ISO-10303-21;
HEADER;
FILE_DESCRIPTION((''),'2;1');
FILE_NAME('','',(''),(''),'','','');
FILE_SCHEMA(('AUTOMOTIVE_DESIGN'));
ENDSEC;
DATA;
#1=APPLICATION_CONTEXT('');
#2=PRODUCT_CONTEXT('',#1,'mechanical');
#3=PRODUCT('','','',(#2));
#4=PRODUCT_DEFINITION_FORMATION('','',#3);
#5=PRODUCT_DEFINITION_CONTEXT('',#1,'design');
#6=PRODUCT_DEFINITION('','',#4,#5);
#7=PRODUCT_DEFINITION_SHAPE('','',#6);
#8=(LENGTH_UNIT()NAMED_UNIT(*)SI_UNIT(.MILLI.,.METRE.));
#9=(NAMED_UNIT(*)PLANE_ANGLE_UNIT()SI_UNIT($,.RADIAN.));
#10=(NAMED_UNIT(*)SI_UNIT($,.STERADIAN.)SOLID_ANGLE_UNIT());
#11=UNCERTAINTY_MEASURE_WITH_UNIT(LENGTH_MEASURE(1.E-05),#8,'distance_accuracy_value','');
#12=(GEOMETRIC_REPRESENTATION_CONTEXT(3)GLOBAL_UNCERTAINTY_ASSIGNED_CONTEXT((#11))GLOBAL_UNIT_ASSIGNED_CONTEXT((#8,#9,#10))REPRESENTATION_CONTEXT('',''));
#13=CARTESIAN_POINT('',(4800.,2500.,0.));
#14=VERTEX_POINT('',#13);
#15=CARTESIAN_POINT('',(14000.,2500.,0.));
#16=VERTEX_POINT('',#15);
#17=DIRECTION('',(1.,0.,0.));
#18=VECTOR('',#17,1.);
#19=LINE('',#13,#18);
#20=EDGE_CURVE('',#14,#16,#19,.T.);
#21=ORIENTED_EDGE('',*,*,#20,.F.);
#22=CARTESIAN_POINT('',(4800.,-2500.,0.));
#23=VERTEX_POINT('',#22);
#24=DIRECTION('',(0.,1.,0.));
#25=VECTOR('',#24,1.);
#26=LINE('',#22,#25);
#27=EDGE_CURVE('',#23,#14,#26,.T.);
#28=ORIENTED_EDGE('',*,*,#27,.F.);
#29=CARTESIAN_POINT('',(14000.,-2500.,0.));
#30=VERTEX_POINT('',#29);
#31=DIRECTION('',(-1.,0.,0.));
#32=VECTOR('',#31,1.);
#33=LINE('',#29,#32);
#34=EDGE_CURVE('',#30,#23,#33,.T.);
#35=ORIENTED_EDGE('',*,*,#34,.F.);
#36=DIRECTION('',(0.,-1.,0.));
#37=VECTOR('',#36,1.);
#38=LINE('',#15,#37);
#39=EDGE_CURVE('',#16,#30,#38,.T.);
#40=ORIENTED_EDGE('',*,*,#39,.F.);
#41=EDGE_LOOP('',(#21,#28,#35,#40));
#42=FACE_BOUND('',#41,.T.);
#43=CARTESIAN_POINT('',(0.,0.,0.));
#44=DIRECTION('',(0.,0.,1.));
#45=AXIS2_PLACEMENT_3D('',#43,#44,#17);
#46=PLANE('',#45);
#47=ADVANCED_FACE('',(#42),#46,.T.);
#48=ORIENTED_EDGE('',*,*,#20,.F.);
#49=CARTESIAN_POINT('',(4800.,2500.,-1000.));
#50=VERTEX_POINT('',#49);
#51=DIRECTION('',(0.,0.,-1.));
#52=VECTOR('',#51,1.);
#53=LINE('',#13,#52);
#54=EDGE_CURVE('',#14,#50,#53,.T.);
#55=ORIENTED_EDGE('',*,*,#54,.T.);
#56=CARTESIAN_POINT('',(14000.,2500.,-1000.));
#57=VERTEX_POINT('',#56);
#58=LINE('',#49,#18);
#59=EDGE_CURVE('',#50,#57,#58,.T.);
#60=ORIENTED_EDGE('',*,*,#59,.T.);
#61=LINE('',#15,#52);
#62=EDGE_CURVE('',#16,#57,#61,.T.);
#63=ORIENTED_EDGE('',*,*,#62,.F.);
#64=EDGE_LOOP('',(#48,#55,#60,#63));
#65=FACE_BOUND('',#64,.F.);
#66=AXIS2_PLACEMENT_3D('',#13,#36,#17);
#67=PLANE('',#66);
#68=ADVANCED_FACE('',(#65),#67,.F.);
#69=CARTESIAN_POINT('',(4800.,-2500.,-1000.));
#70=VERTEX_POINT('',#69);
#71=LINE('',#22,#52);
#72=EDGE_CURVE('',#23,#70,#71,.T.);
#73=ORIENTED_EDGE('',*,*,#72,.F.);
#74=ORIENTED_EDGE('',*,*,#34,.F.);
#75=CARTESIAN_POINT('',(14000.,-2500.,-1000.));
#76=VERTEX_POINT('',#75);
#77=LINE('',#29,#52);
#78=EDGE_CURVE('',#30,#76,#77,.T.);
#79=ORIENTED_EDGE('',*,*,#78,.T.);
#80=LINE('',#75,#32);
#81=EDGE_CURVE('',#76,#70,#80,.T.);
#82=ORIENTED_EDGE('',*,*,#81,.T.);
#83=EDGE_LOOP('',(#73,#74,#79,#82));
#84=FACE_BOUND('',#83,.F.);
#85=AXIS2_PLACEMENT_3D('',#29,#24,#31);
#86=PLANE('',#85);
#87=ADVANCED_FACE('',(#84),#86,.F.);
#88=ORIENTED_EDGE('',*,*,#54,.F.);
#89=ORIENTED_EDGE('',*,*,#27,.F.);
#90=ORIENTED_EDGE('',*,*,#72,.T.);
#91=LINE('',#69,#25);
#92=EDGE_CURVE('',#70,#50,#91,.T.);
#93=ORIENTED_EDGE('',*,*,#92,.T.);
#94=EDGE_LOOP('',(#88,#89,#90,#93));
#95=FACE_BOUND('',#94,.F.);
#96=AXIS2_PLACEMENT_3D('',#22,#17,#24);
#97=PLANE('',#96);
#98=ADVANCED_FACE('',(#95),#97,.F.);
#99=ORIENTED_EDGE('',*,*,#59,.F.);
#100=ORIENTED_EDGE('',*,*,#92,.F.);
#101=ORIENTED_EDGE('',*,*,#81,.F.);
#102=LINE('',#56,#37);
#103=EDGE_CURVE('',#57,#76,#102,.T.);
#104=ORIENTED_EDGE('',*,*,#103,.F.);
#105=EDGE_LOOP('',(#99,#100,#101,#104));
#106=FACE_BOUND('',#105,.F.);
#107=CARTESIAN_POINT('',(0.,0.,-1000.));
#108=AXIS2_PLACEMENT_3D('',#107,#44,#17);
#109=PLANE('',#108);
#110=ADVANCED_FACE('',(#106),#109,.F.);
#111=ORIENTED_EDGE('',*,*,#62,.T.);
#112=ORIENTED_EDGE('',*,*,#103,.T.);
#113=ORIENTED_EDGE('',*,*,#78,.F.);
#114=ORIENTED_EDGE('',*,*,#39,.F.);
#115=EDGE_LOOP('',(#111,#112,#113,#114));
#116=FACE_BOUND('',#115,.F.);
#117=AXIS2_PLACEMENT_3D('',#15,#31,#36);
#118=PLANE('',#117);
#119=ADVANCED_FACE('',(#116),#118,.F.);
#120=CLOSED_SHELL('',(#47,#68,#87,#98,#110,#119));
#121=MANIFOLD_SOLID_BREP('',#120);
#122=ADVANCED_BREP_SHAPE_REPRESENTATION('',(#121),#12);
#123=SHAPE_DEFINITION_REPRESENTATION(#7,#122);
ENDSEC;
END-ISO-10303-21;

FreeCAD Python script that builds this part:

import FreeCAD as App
import Part
import Sketcher

V = App.Vector
Q = App.Units.Quantity

doc = App.newDocument("Part")
params = doc.addObject("Spreadsheet::Sheet", "Params")
for row, (alias, value) in enumerate([
    ("sketch1_width", "9200 mm"),
    ("sketch1_height", "5000 mm"),
    ("pad1_length", "1000 mm"),
], start=1):
    params.set(f"A{row}", alias)
    params.set(f"B{row}", "=" + value)
    params.setAlias(f"B{row}", alias)

body = doc.addObject("PartDesign::Body", "Body")

# Sketch on XY plane
sketch1 = body.newObject("Sketcher::SketchObject", "Sketch")
sketch1.AttachmentSupport = (doc.getObject("XY_Plane"), [""])
sketch1.MapMode = "FlatFace"
sketch1.addGeometry(Part.LineSegment(V(14000, 2500, 0), V(4800, 2500, 0)), False)
sketch1.addGeometry(Part.LineSegment(V(4800, 2500, 0), V(4800, -2500, 0)), False)
sketch1.addGeometry(Part.LineSegment(V(4800, -2500, 0), V(14000, -2500, 0)), False)
sketch1.addGeometry(Part.LineSegment(V(14000, -2500, 0), V(14000, 2500, 0)), False)
sketch1.addConstraint(Sketcher.Constraint("Coincident", 0, 2, 1, 1))
sketch1.addConstraint(Sketcher.Constraint("Coincident", 1, 2, 2, 1))
sketch1.addConstraint(Sketcher.Constraint("Coincident", 2, 2, 3, 1))
sketch1.addConstraint(Sketcher.Constraint("Coincident", 3, 2, 0, 1))
sketch1.addConstraint(Sketcher.Constraint("Horizontal", 0))
sketch1.addConstraint(Sketcher.Constraint("Vertical", 1))
sketch1.addConstraint(Sketcher.Constraint("Horizontal", 2))
sketch1.addConstraint(Sketcher.Constraint("Vertical", 3))
sketch1.addConstraint(Sketcher.Constraint("DistanceX", 0, 2, 0, 1, Q("9200 mm")))
sketch1.addConstraint(Sketcher.Constraint("DistanceY", 1, 2, 1, 1, Q("5000 mm")))
sketch1.addConstraint(Sketcher.Constraint("DistanceX", -1, 1, 0, 2, Q("4800 mm")))
sketch1.addConstraint(Sketcher.Constraint("DistanceY", -1, 1, 0, 2, Q("2500 mm")))
sketch1.setExpression("Constraints[8]", "Params.sketch1_width")
sketch1.setExpression("Constraints[9]", "Params.sketch1_height")
pad1 = body.newObject("PartDesign::Pad", "Pad")
pad1.Profile = sketch1
pad1.setExpression("Length", "Params.pad1_length")
pad1.Reversed = True

doc.recompute()
